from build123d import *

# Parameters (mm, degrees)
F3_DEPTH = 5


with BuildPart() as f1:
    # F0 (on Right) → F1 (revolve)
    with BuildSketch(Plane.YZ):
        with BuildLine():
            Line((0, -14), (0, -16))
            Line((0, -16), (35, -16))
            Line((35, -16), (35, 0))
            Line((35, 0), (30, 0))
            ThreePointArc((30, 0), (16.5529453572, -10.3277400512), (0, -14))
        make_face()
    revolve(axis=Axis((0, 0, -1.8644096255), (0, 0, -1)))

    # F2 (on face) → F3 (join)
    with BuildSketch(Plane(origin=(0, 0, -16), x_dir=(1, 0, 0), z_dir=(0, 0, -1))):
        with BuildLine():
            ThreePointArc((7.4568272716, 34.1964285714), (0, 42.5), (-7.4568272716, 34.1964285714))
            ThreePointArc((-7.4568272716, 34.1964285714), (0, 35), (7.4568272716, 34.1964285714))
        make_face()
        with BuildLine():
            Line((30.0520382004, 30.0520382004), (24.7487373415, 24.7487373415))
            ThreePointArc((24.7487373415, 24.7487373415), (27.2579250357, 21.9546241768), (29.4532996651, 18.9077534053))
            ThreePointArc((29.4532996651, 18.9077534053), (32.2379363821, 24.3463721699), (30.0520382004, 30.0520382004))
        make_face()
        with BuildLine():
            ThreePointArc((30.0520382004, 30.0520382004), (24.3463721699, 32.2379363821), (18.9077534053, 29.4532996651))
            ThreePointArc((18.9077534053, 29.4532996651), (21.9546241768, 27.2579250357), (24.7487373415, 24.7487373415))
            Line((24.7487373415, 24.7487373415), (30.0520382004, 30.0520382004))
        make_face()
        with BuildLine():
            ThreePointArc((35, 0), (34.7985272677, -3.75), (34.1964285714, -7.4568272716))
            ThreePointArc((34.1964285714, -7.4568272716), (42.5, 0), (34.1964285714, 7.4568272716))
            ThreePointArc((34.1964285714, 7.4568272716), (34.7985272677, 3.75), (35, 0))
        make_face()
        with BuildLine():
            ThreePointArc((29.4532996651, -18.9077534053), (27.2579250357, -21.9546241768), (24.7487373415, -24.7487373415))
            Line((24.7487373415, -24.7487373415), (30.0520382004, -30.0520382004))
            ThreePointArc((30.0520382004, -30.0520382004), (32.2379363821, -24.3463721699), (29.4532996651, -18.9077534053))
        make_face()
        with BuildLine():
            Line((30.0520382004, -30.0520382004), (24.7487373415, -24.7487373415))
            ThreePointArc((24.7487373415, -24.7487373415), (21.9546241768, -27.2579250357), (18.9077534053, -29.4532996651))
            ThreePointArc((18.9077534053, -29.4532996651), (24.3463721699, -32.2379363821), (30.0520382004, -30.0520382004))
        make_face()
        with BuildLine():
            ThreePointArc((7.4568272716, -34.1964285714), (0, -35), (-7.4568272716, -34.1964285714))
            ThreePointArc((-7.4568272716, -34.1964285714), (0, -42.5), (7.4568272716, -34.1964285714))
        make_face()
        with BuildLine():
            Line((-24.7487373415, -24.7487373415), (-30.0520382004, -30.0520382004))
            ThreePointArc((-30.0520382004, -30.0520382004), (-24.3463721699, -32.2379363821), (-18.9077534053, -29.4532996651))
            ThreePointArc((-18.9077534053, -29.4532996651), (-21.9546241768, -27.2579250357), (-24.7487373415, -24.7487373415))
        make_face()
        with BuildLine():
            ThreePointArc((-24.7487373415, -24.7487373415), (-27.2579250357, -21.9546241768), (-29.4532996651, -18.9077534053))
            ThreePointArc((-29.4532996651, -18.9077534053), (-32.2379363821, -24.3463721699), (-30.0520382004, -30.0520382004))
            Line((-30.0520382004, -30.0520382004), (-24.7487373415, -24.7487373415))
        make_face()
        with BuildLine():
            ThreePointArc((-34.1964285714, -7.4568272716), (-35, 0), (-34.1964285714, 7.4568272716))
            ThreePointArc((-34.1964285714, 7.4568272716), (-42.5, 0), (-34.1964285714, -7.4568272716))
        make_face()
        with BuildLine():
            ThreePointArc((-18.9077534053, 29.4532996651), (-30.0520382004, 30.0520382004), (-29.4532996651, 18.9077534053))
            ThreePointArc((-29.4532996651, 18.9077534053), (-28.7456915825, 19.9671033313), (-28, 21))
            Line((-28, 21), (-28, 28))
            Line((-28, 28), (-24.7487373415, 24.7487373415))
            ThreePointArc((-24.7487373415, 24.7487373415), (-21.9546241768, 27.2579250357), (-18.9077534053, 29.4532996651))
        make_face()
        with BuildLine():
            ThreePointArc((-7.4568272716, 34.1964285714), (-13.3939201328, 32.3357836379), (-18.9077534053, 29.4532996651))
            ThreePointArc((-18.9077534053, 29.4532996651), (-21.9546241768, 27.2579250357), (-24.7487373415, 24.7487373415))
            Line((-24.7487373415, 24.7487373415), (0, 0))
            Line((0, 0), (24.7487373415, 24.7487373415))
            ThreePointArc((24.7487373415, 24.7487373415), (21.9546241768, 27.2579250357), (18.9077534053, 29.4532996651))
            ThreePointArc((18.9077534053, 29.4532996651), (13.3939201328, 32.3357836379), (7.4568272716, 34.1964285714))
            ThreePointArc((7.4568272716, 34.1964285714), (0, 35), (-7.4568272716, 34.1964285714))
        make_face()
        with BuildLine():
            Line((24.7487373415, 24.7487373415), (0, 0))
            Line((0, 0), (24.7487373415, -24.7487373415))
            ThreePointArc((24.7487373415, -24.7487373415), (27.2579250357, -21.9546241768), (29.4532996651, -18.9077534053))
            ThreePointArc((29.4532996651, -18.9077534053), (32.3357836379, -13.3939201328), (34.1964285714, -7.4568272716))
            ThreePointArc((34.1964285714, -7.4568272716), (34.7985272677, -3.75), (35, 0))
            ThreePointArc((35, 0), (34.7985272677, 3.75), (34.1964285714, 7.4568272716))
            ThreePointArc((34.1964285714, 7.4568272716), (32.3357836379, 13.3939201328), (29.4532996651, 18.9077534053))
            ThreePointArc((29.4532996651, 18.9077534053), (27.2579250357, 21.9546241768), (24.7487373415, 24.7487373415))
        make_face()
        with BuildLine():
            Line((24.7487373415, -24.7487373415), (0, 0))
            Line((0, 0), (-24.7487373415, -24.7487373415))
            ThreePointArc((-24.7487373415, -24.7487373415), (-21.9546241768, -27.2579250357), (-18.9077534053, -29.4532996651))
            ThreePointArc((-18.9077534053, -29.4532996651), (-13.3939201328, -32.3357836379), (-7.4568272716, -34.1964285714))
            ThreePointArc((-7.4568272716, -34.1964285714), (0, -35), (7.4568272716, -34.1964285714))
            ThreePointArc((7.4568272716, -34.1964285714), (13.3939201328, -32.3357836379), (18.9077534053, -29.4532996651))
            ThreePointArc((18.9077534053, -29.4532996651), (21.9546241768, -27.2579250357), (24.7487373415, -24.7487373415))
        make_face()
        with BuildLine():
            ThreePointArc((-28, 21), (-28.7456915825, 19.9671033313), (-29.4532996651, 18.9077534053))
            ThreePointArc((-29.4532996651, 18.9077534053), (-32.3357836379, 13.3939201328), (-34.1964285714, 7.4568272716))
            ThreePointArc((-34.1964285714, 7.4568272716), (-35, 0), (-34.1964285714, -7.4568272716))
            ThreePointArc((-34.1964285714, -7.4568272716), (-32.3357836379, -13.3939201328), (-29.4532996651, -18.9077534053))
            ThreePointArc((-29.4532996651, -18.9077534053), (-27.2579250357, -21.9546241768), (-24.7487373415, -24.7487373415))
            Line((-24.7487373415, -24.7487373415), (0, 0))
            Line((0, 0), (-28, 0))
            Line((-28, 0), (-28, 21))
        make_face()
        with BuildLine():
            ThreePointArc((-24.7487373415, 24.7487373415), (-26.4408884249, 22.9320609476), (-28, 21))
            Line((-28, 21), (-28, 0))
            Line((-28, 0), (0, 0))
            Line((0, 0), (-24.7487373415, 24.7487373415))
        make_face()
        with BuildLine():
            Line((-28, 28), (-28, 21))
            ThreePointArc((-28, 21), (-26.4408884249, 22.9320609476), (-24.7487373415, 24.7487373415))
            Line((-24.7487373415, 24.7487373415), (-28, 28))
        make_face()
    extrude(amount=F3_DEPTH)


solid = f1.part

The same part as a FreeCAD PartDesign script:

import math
import FreeCAD as App
import Part
import Sketcher

V = App.Vector
Q = App.Units.Quantity

doc = App.newDocument("Part")
body = doc.addObject("PartDesign::Body", "Body")

sketch1 = doc.addObject("Sketcher::SketchObject", "Sketch")
body.addObject(sketch1)
sketch1.AttachmentSupport = (doc.YZ_Plane, [""])
sketch1.MapMode = "FlatFace"
sketch1.addGeometry([
    Part.LineSegment(V(0, -14, 0), V(0, -16, 0)),
    Part.LineSegment(V(0, -16, 0), V(35, -16, 0)),
    Part.LineSegment(V(35, -16, 0), V(35, 0, 0)),
    Part.LineSegment(V(35, 0, 0), V(30, 0, 0)),
    Part.ArcOfCircle(Part.Circle(V(0, 25.1, 0), V(0, 0, 1), 39.1), math.radians(-90), math.radians(-40)),
], False)
sketch1.addConstraint([
    Sketcher.Constraint("Coincident", 0, 2, 1, 1),
    Sketcher.Constraint("Coincident", 1, 2, 2, 1),
    Sketcher.Constraint("Coincident", 2, 2, 3, 1),
    Sketcher.Constraint("Coincident", 3, 2, 4, 2),
    Sketcher.Constraint("Coincident", 4, 1, 0, 1),
    Sketcher.Constraint("Vertical", 0),
    Sketcher.Constraint("Horizontal", 1),
    Sketcher.Constraint("Vertical", 2),
    Sketcher.Constraint("Horizontal", 3),
    Sketcher.Constraint("PointOnObject", 4, 3, -2),
    Sketcher.Constraint("PointOnObject", 0, 2, -2),
    Sketcher.Constraint("PointOnObject", 2, 2, -1),
    Sketcher.Constraint("DistanceX", 1, 1, 1, 2, Q("35 mm")),
    Sketcher.Constraint("DistanceX", 3, 2, 3, 1, Q("5 mm")),
    Sketcher.Constraint("DistanceY", 0, 2, 0, 1, Q("2 mm")),
    Sketcher.Constraint("DistanceY", 2, 1, 2, 2, Q("16 mm")),
])
revolution = doc.addObject("PartDesign::Revolution", "Revolution")
body.addObject(revolution)
revolution.Profile = sketch1
revolution.ReferenceAxis = (sketch1, ["V_Axis"])
revolution.Angle = 360

sketch2 = doc.addObject("Sketcher::SketchObject", "Sketch001")
body.addObject(sketch2)
sketch2.AttachmentSupport = (doc.XY_Plane, [""])
sketch2.MapMode = "FlatFace"
sketch2.AttachmentOffset = App.Placement(V(0, 0, -16), App.Rotation())
sketch2.addGeometry([
    Part.ArcOfCircle(Part.Circle(V(0, -35, 0), V(0, 0, 1), 8), math.radians(174), math.radians(366)),
    Part.ArcOfCircle(Part.Circle(V(0, 0, 0), V(0, 0, 1), 35), math.radians(-123), math.radians(-102)),
    Part.ArcOfCircle(Part.Circle(V(-25, -25, 0), V(0, 0, 1), 8), math.radians(129), math.radians(321)),
    Part.ArcOfCircle(Part.Circle(V(0, 0, 0), V(0, 0, 1), 35), math.radians(-168), math.radians(-147)),
    Part.ArcOfCircle(Part.Circle(V(-35, 0, 0), V(0, 0, 1), 8), math.radians(84), math.radians(276)),
    Part.ArcOfCircle(Part.Circle(V(0, 0, 0), V(0, 0, 1), 35), math.radians(147), math.radians(168)),
    Part.ArcOfCircle(Part.Circle(V(-25, 25, 0), V(0, 0, 1), 8), math.radians(135), math.radians(231)),
    Part.ArcOfCircle(Part.Circle(V(-25, 25, 0), V(0, 0, 1), 8), math.radians(39), math.radians(135)),
    Part.ArcOfCircle(Part.Circle(V(0, 0, 0), V(0, 0, 1), 35), math.radians(102), math.radians(123)),
    Part.ArcOfCircle(Part.Circle(V(0, 35, 0), V(0, 0, 1), 8), math.radians(-6), math.radians(186)),
    Part.ArcOfCircle(Part.Circle(V(0, 0, 0), V(0, 0, 1), 35), math.radians(57), math.radians(78)),
    Part.ArcOfCircle(Part.Circle(V(25, 25, 0), V(0, 0, 1), 8), math.radians(45), math.radians(141)),
    Part.ArcOfCircle(Part.Circle(V(25, 25, 0), V(0, 0, 1), 8), math.radians(-51), math.radians(45)),
    Part.ArcOfCircle(Part.Circle(V(0, 0, 0), V(0, 0, 1), 35), math.radians(12), math.radians(33)),
    Part.ArcOfCircle(Part.Circle(V(35, 0, 0), V(0, 0, 1), 8), math.radians(-96), math.radians(96)),
    Part.ArcOfCircle(Part.Circle(V(0, 0, 0), V(0, 0, 1), 35), math.radians(-33), math.radians(-12)),
    Part.ArcOfCircle(Part.Circle(V(25, -25, 0), V(0, 0, 1), 8), math.radians(-45), math.radians(51)),
    Part.ArcOfCircle(Part.Circle(V(25, -25, 0), V(0, 0, 1), 8), math.radians(-141), math.radians(-45)),
    Part.ArcOfCircle(Part.Circle(V(0, 0, 0), V(0, 0, 1), 35), math.radians(-78), math.radians(-57)),
], False)
sketch2.addConstraint([
    Sketcher.Constraint("Coincident", 0, 1, 1, 2),
    Sketcher.Constraint("Coincident", 1, 1, 2, 2),
    Sketcher.Constraint("Coincident", 2, 1, 3, 2),
    Sketcher.Constraint("Coincident", 3, 1, 4, 2),
    Sketcher.Constraint("Coincident", 4, 1, 5, 2),
    Sketcher.Constraint("Coincident", 5, 1, 6, 2),
    Sketcher.Constraint("Tangent", 6, 1, 7, 2),
    Sketcher.Constraint("Coincident", 7, 1, 8, 2),
    Sketcher.Constraint("Coincident", 8, 1, 9, 2),
    Sketcher.Constraint("Coincident", 9, 1, 10, 2),
    Sketcher.Constraint("Coincident", 10, 1, 11, 2),
    Sketcher.Constraint("Tangent", 11, 1, 12, 2),
    Sketcher.Constraint("Coincident", 12, 1, 13, 2),
    Sketcher.Constraint("Coincident", 13, 1, 14, 2),
    Sketcher.Constraint("Coincident", 14, 1, 15, 2),
    Sketcher.Constraint("Coincident", 15, 1, 16, 2),
    Sketcher.Constraint("Tangent", 16, 1, 17, 2),
    Sketcher.Constraint("Coincident", 17, 1, 18, 2),
    Sketcher.Constraint("Coincident", 18, 1, 0, 2),
    Sketcher.Constraint("Coincident", 1, 3, -1, 1),
    Sketcher.Constraint("Coincident", 3, 3, -1, 1),
    Sketcher.Constraint("Coincident", 5, 3, -1, 1),
    Sketcher.Constraint("Coincident", 8, 3, -1, 1),
    Sketcher.Constraint("Coincident", 10, 3, -1, 1),
    Sketcher.Constraint("Coincident", 13, 3, -1, 1),
    Sketcher.Constraint("Coincident", 15, 3, -1, 1),
    Sketcher.Constraint("Coincident", 18, 3, -1, 1),
    Sketcher.Constraint("Equal", 0, 2),
    Sketcher.Constraint("Equal", 1, 3),
    Sketcher.Constraint("Equal", 2, 4),
    Sketcher.Constraint("Equal", 3, 5),
    Sketcher.Constraint("Equal", 4, 6),
    Sketcher.Constraint("Equal", 6, 7),
    Sketcher.Constraint("Equal", 5, 8),
    Sketcher.Constraint("Equal", 7, 9),
    Sketcher.Constraint("Equal", 8, 10),
    Sketcher.Constraint("Equal", 9, 11),
    Sketcher.Constraint("Equal", 11, 12),
    Sketcher.Constraint("Equal", 10, 13),
    Sketcher.Constraint("Equal", 12, 14),
    Sketcher.Constraint("Equal", 13, 15),
    Sketcher.Constraint("Equal", 14, 16),
    Sketcher.Constraint("Equal", 16, 17),
    Sketcher.Constraint("Equal", 15, 18),
    Sketcher.Constraint("Symmetric", 0, 3, 9, 3, -1, 1),
    Sketcher.Constraint("Symmetric", 2, 3, 11, 3, -1, 1),
    Sketcher.Constraint("Symmetric", 4, 3, 14, 3, -1, 1),
    Sketcher.Constraint("Symmetric", 6, 3, 16, 3, -1, 1),
    Sketcher.Constraint("Symmetric", 6, 3, 11, 3, -2),
    Sketcher.Constraint("PointOnObject", 0, 3, -2),
    Sketcher.Constraint("PointOnObject", 4, 3, -1),
    Sketcher.Constraint("Horizontal", 6, 1, 11, 1),
    Sketcher.Constraint("Vertical", 11, 1, 16, 1),
    Sketcher.Constraint("Radius", 1, Q("35 mm")),
    Sketcher.Constraint("Radius", 0, Q("7.5 mm")),
    Sketcher.Constraint("DistanceY", 0, 3, -1, 1, Q("35 mm")),
    Sketcher.Constraint("DistanceX", 4, 3, -1, 1, Q("35 mm")),
    Sketcher.Constraint("DistanceY", 1, 1, -1, 1, Q("29.4533 mm")),
    Sketcher.Constraint("DistanceX", 2, 1, -1, 1, Q("29.4533 mm")),
    Sketcher.Constraint("DistanceX", 6, 1, 6, 3, Q("5.303301 mm")),
])
pad1 = doc.addObject("PartDesign::Pad", "Pad")
body.addObject(pad1)
pad1.Profile = sketch2
pad1.Length = 5
pad1.Reversed = True

doc.recompute()
